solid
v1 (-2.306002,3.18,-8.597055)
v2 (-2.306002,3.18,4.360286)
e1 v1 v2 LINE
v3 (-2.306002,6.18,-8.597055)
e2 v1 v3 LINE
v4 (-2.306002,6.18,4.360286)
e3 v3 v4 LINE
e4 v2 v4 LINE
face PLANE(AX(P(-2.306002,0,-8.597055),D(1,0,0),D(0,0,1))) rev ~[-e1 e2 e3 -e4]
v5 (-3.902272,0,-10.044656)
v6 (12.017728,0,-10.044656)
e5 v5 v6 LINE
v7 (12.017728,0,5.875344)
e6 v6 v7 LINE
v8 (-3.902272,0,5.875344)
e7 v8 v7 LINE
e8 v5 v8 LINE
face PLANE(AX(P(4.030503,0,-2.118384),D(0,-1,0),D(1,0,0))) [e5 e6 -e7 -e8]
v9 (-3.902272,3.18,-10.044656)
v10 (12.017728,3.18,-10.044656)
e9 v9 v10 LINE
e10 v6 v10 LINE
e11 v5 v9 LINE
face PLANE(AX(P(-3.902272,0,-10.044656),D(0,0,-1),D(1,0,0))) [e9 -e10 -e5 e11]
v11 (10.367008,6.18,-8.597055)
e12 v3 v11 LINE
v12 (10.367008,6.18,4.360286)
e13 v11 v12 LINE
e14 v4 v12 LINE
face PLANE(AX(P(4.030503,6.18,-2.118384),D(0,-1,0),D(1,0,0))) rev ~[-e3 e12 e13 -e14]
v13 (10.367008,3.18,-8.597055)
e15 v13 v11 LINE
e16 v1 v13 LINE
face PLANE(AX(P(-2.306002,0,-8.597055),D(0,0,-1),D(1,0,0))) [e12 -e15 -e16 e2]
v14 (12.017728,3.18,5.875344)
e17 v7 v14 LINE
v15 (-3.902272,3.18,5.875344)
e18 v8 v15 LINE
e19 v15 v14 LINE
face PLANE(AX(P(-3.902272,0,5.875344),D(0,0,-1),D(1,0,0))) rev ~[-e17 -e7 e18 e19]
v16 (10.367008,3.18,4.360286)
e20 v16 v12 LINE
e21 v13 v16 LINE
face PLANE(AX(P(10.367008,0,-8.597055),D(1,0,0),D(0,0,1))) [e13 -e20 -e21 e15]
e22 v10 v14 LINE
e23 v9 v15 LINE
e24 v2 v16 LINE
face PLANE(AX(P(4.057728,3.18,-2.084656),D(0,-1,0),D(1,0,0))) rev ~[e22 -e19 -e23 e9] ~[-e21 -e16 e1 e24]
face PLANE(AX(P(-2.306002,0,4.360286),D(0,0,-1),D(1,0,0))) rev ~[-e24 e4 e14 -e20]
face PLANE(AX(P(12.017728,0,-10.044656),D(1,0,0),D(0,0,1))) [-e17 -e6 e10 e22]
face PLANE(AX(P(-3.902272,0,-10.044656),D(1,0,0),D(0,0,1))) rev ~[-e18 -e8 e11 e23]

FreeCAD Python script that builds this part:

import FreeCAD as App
import Part
import Sketcher
from FreeCAD import Vector

doc = App.newDocument("Part")
params = doc.addObject("Spreadsheet::Sheet", "Params")
for row, (alias, value) in enumerate([
    ("sketch1_width", "15.92 mm"),
    ("pad1_length", "3.18 mm"),
    ("pad2_length", "6.18 mm"),
], start=1):
    params.set(f"A{row}", alias)
    params.set(f"B{row}", "=" + value)
    params.setAlias(f"B{row}", alias)

body = doc.addObject("PartDesign::Body", "Body")

# Sketch on XZ plane
sketch1 = body.newObject("Sketcher::SketchObject", "Sketch")
sketch1.AttachmentSupport = (doc.getObject("XZ_Plane"), [""])
sketch1.MapMode = "FlatFace"
sketch1.addGeometry([
    Part.LineSegment(Vector(-3.902272, 5.875344, 0), Vector(-3.902272, -10.044656, 0)),
    Part.LineSegment(Vector(-3.902272, -10.044656, 0), Vector(12.017728, -10.044656, 0)),
    Part.LineSegment(Vector(12.017728, -10.044656, 0), Vector(12.017728, 5.875344, 0)),
    Part.LineSegment(Vector(12.017728, 5.875344, 0), Vector(-3.902272, 5.875344, 0)),
], False)
sketch1.addConstraint([
    Sketcher.Constraint("Coincident", 0, 2, 1, 1),
    Sketcher.Constraint("Coincident", 1, 2, 2, 1),
    Sketcher.Constraint("Coincident", 2, 2, 3, 1),
    Sketcher.Constraint("Coincident", 3, 2, 0, 1),
    Sketcher.Constraint("Vertical", 0),
    Sketcher.Constraint("Horizontal", 1),
    Sketcher.Constraint("Vertical", 2),
    Sketcher.Constraint("Horizontal", 3),
    Sketcher.Constraint("Equal", 3, 0),
    Sketcher.Constraint("DistanceX", 1, 1, 1, 2, 15.92),
    Sketcher.Constraint("DistanceX", 0, 2, -1, 1, 3.902272),
    Sketcher.Constraint("DistanceY", 0, 2, -1, 1, 10.044656),
])
sketch1.setExpression("Constraints[9]", "Params.sketch1_width")
pad1 = body.newObject("PartDesign::Pad", "Pad")
pad1.Profile = sketch1
pad1.setExpression("Length", "Params.pad1_length")
pad1.Reversed = True

# Sketch on XZ plane
sketch2 = body.newObject("Sketcher::SketchObject", "Sketch001")
sketch2.AttachmentSupport = (doc.getObject("XZ_Plane"), [""])
sketch2.MapMode = "FlatFace"
sketch2.addGeometry([
    Part.LineSegment(Vector(-2.306002, 4.360286, 0), Vector(-2.306002, -8.597055, 0)),
    Part.LineSegment(Vector(-2.306002, -8.597055, 0), Vector(10.367008, -8.597055, 0)),
    Part.LineSegment(Vector(10.367008, -8.597055, 0), Vector(10.367008, 4.360286, 0)),
    Part.LineSegment(Vector(10.367008, 4.360286, 0), Vector(-2.306002, 4.360286, 0)),
], False)
sketch2.addConstraint([
    Sketcher.Constraint("Coincident", 0, 2, 1, 1),
    Sketcher.Constraint("Coincident", 1, 2, 2, 1),
    Sketcher.Constraint("Coincident", 2, 2, 3, 1),
    Sketcher.Constraint("Coincident", 3, 2, 0, 1),
    Sketcher.Constraint("Vertical", 0),
    Sketcher.Constraint("Horizontal", 1),
    Sketcher.Constraint("Vertical", 2),
    Sketcher.Constraint("Horizontal", 3),
    Sketcher.Constraint("DistanceX", 0, 2, -1, 1, 2.306002),
    Sketcher.Constraint("DistanceX", 1, 1, 1, 2, 12.67301),
    Sketcher.Constraint("DistanceY", 0, 2, 0, 1, 12.957341),
    Sketcher.Constraint("DistanceY", 0, 2, -1, 1, 8.597055),
])
pad2 = body.newObject("PartDesign::Pad", "Pad001")
pad2.Profile = sketch2
pad2.setExpression("Length", "Params.pad2_length")
pad2.Reversed = True

doc.recompute()
